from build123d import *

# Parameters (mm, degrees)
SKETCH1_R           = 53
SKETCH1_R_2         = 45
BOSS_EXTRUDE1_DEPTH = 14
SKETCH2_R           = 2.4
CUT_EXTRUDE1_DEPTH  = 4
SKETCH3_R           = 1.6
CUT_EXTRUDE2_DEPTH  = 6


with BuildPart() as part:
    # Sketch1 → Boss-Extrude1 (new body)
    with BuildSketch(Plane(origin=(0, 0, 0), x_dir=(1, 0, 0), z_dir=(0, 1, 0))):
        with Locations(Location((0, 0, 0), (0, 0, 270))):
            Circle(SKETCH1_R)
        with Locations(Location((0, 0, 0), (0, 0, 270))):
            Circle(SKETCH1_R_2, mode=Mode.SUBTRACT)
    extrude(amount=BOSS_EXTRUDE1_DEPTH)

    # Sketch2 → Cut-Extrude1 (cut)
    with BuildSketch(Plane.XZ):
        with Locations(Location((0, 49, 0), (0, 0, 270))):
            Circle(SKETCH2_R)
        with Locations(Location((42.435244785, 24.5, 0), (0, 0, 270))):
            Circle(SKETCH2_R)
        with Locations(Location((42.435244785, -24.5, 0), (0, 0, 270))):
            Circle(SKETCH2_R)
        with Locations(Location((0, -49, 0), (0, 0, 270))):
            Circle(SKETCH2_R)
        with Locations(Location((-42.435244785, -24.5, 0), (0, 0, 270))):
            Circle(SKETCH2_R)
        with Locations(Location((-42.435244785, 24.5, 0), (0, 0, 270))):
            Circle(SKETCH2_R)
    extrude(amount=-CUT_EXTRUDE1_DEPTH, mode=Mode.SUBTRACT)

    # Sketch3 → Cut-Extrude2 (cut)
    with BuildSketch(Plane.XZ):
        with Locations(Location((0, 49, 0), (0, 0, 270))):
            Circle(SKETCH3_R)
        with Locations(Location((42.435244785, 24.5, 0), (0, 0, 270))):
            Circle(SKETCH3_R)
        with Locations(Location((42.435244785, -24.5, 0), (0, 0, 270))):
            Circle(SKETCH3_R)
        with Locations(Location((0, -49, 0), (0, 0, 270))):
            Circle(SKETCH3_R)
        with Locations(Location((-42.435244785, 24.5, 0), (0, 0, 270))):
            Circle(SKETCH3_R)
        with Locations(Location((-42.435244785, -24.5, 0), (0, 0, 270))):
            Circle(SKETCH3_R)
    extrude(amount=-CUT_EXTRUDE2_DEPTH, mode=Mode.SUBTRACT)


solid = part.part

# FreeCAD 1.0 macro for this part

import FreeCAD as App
import Part
import Sketcher

V = App.Vector

doc = App.newDocument("Part")
params = doc.addObject("Spreadsheet::Sheet", "Params")
for row, (alias, value) in enumerate([
    ("sketch1_diameter", "106 mm"),
    ("sketch1_diameter2", "90 mm"),
    ("pad1_length", "14 mm"),
    ("sketch2_diameter", "4.8 mm"),
    ("pocket1_length", "4 mm"),
    ("sketch3_diameter", "3.2 mm"),
    ("pocket2_length", "6 mm"),
], start=1):
    params.set(f"A{row}", alias)
    params.set(f"B{row}", "=" + value)
    params.setAlias(f"B{row}", alias)

body = doc.addObject("PartDesign::Body", "Body")

# Sketch on XZ plane
sketch1 = body.newObject("Sketcher::SketchObject", "Sketch")
sketch1.AttachmentSupport = (doc.getObject("XZ_Plane"), [""])
sketch1.MapMode = "FlatFace"
sketch1.addGeometry([
    Part.Circle(V(0, 0, 0), V(0, 0, 1), 53),
    Part.Circle(V(0, 0, 0), V(0, 0, 1), 45),
], False)
sketch1.addConstraint([
    Sketcher.Constraint("Coincident", 0, 3, -1, 1),
    Sketcher.Constraint("Coincident", 1, 3, -1, 1),
    Sketcher.Constraint("Diameter", 0, 106.0),
    Sketcher.Constraint("Diameter", 1, 90.0),
])
sketch1.setExpression("Constraints[2]", "Params.sketch1_diameter")
sketch1.setExpression("Constraints[3]", "Params.sketch1_diameter2")
pad1 = body.newObject("PartDesign::Pad", "Pad")
pad1.Profile = sketch1
pad1.setExpression("Length", "Params.pad1_length")
pad1.Reversed = True

# Sketch on XZ plane
sketch2 = body.newObject("Sketcher::SketchObject", "Sketch001")
sketch2.AttachmentSupport = (doc.getObject("XZ_Plane"), [""])
sketch2.MapMode = "FlatFace"
sketch2.addGeometry([
    Part.Circle(V(0, 49, 0), V(0, 0, 1), 2.4),  # 0
    Part.Circle(V(42.4, 24.5, 0), V(0, 0, 1), 2.4),  # 1
    Part.Circle(V(42.4, -24.5, 0), V(0, 0, 1), 2.4),  # 2
    Part.Circle(V(0, -49, 0), V(0, 0, 1), 2.4),  # 3
    Part.Circle(V(-42.4, -24.5, 0), V(0, 0, 1), 2.4),  # 4
    Part.Circle(V(-42.4, 24.5, 0), V(0, 0, 1), 2.4),  # 5
], False)
sketch2.addConstraint([
    Sketcher.Constraint("Equal", 0, 1),
    Sketcher.Constraint("Equal", 1, 2),
    Sketcher.Constraint("Equal", 2, 3),
    Sketcher.Constraint("Equal", 3, 4),
    Sketcher.Constraint("Equal", 4, 5),
    Sketcher.Constraint("Symmetric", 0, 3, 3, 3, -1, 1),
    Sketcher.Constraint("Symmetric", 1, 3, 4, 3, -1, 1),
    Sketcher.Constraint("Symmetric", 2, 3, 5, 3, -1, 1),
    Sketcher.Constraint("Symmetric", 2, 3, 4, 3, -2),
    Sketcher.Constraint("PointOnObject", 0, 3, -2),
    Sketcher.Constraint("Diameter", 0, 4.8),
    Sketcher.Constraint("DistanceY", -1, 1, 0, 3, 49.0),
    Sketcher.Constraint("DistanceY", 2, 3, 1, 3, 49.0),
    Sketcher.Constraint("DistanceX", 4, 3, 2, 3, 84.87049),
])
sketch2.setExpression("Constraints[10]", "Params.sketch2_diameter")
pocket1 = body.newObject("PartDesign::Pocket", "Pocket")
pocket1.Profile = sketch2
pocket1.setExpression("Length", "Params.pocket1_length")

# Sketch on XZ plane
sketch3 = body.newObject("Sketcher::SketchObject", "Sketch002")
sketch3.AttachmentSupport = (doc.getObject("XZ_Plane"), [""])
sketch3.MapMode = "FlatFace"
sketch3.addGeometry([
    Part.Circle(V(0, 49, 0), V(0, 0, 1), 1.6),  # 0
    Part.Circle(V(42.4, 24.5, 0), V(0, 0, 1), 1.6),  # 1
    Part.Circle(V(42.4, -24.5, 0), V(0, 0, 1), 1.6),  # 2
    Part.Circle(V(0, -49, 0), V(0, 0, 1), 1.6),  # 3
    Part.Circle(V(-42.4, 24.5, 0), V(0, 0, 1), 1.6),  # 4
    Part.Circle(V(-42.4, -24.5, 0), V(0, 0, 1), 1.6),  # 5
], False)
sketch3.addConstraint([
    Sketcher.Constraint("Equal", 0, 1),
    Sketcher.Constraint("Equal", 1, 2),
    Sketcher.Constraint("Equal", 2, 3),
    Sketcher.Constraint("Equal", 3, 4),
    Sketcher.Constraint("Equal", 4, 5),
    Sketcher.Constraint("Symmetric", 0, 3, 3, 3, -1, 1),
    Sketcher.Constraint("Symmetric", 2, 3, 4, 3, -1, 1),
    Sketcher.Constraint("Symmetric", 1, 3, 5, 3, -1, 1),
    Sketcher.Constraint("Symmetric", 1, 3, 4, 3, -2),
    Sketcher.Constraint("PointOnObject", 0, 3, -2),
    Sketcher.Constraint("Diameter", 0, 3.2),
    Sketcher.Constraint("DistanceY", -1, 1, 0, 3, 49.0),
    Sketcher.Constraint("DistanceY", 2, 3, 1, 3, 49.0),
    Sketcher.Constraint("DistanceX", 4, 3, 1, 3, 84.87049),
])
sketch3.setExpression("Constraints[10]", "Params.sketch3_diameter")
pocket2 = body.newObject("PartDesign::Pocket", "Pocket001")
pocket2.Profile = sketch3
pocket2.setExpression("Length", "Params.pocket2_length")

doc.recompute()
